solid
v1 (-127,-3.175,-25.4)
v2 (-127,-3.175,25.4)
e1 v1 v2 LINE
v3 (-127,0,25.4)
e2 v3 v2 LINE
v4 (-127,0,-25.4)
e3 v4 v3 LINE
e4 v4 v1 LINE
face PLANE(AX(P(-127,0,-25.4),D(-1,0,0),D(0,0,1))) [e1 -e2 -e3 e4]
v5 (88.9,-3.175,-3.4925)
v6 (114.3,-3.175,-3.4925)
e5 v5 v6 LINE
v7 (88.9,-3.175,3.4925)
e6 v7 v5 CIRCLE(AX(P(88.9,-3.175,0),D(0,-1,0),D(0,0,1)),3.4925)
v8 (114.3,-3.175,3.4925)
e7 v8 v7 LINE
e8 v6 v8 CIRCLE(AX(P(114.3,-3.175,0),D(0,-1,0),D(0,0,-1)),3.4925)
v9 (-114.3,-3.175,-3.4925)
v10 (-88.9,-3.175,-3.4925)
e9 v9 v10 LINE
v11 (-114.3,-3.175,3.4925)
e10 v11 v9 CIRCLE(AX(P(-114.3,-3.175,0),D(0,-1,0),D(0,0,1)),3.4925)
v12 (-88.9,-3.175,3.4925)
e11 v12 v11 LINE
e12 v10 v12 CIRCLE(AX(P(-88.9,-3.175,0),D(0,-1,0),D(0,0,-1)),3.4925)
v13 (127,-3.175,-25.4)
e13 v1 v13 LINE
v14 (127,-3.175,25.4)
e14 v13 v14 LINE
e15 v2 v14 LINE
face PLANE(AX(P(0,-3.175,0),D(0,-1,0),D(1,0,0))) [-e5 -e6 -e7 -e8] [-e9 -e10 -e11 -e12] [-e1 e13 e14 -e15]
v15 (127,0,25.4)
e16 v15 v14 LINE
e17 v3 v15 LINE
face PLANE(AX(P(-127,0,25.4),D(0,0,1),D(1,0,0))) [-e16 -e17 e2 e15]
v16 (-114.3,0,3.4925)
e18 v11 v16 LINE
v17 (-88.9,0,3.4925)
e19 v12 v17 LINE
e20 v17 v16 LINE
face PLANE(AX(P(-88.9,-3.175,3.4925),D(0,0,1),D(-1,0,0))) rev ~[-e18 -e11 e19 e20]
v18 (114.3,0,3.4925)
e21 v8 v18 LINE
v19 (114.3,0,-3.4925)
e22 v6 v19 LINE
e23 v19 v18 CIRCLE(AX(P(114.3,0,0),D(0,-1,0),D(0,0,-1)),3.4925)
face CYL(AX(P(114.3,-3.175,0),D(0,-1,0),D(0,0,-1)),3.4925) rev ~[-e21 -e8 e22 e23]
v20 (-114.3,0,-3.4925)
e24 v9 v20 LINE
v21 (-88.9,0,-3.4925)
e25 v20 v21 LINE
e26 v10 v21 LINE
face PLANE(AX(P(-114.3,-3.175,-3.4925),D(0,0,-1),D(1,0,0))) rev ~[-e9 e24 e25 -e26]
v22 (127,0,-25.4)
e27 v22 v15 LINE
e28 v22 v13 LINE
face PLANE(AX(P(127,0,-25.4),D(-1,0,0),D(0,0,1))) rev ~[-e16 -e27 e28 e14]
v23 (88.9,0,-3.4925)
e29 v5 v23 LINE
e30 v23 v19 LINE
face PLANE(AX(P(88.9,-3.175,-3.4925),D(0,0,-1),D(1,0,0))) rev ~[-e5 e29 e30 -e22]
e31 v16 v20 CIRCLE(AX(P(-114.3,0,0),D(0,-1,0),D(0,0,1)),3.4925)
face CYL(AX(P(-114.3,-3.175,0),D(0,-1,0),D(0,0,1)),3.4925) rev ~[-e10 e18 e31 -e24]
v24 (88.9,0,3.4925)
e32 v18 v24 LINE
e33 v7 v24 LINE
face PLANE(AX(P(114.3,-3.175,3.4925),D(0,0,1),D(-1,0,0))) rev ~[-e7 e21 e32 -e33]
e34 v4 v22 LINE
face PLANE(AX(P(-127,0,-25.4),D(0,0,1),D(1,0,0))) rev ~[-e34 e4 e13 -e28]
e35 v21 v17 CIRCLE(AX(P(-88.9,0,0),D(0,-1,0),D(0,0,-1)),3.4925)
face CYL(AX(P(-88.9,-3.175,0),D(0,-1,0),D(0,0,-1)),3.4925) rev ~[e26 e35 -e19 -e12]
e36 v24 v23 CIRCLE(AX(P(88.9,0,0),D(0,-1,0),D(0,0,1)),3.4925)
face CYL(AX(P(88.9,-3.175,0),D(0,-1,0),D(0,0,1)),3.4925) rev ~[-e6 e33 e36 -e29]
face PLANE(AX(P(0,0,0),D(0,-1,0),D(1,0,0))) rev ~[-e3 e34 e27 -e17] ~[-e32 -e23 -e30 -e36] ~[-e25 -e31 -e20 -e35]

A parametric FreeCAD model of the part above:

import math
import FreeCAD as App
import Part
import Sketcher

V = App.Vector
Q = App.Units.Quantity


def add_polygon(sketch, points):
    """Adds a closed chain of lines whose ends are joined by coincident constraints."""
    first, n = sketch.GeometryCount, len(points)
    for a, b in zip(points, points[1:] + points[:1]):
        sketch.addGeometry(Part.LineSegment(App.Vector(*a, 0), App.Vector(*b, 0)), False)
    for i in range(n):
        sketch.addConstraint(Sketcher.Constraint("Coincident", first + i, 2, first + (i + 1) % n, 1))

doc = App.newDocument("Part")
body = doc.addObject("PartDesign::Body", "Body")

# Sketch on XZ plane
sketch1 = body.newObject("Sketcher::SketchObject", "Sketch")
sketch1.AttachmentSupport = (doc.getObject("XZ_Plane"), [""])
sketch1.MapMode = "FlatFace"
add_polygon(sketch1, [(-127, 25), (-127, -25), (127, -25), (127, 25)])  # lines 0-3
sketch1.addConstraint([
    Sketcher.Constraint("Vertical", 0),
    Sketcher.Constraint("Horizontal", 1),
    Sketcher.Constraint("Vertical", 2),
    Sketcher.Constraint("Horizontal", 3),
    Sketcher.Constraint("Symmetric", 0, 2, 2, 2, -1, 1),
    Sketcher.Constraint("DistanceX", 1, 1, 1, 2, Q("10 in")),
    Sketcher.Constraint("DistanceY", 0, 2, 0, 1, Q("2 in")),
])
pad1 = body.newObject("PartDesign::Pad", "Pad")
pad1.Profile = sketch1
pad1.Length = Q("0.125 in")

# Sketch on XZ plane
sketch2 = body.newObject("Sketcher::SketchObject", "Sketch001")
sketch2.AttachmentSupport = (doc.getObject("XZ_Plane"), [""])
sketch2.MapMode = "FlatFace"
sketch2.AttachmentOffset = App.Placement(V(0, 0, 0.125 * 25.4), App.Rotation())
sketch2.addGeometry([
    Part.LineSegment(V(-88.9, 3.5, 0), V(-114.3, 3.5, 0)),  # 0
    Part.ArcOfCircle(Part.Circle(V(-114.3, 0, 0), V(0, 0, 1), 3.5), math.radians(90), math.radians(270)),  # 1
    Part.LineSegment(V(-114.3, -3.5, 0), V(-88.9, -3.5, 0)),  # 2
    Part.ArcOfCircle(Part.Circle(V(-88.9, 0, 0), V(0, 0, 1), 3.5), math.radians(-90), math.radians(90)),  # 3
    Part.LineSegment(V(88.9, -3.5, 0), V(114.3, -3.5, 0)),  # 4
    Part.ArcOfCircle(Part.Circle(V(114.3, 0, 0), V(0, 0, 1), 3.5), math.radians(-90), math.radians(90)),  # 5
    Part.LineSegment(V(114.3, 3.5, 0), V(88.9, 3.5, 0)),  # 6
    Part.ArcOfCircle(Part.Circle(V(88.9, 0, 0), V(0, 0, 1), 3.5), math.radians(90), math.radians(270)),  # 7
], False)
sketch2.addConstraint([
    Sketcher.Constraint("Tangent", 0, 2, 1, 1),
    Sketcher.Constraint("Tangent", 1, 2, 2, 1),
    Sketcher.Constraint("Tangent", 2, 2, 3, 1),
    Sketcher.Constraint("Tangent", 3, 2, 0, 1),
    Sketcher.Constraint("Tangent", 4, 2, 5, 1),
    Sketcher.Constraint("Tangent", 5, 2, 6, 1),
    Sketcher.Constraint("Tangent", 6, 2, 7, 1),
    Sketcher.Constraint("Tangent", 7, 2, 4, 1),
    Sketcher.Constraint("Horizontal", 0),
    Sketcher.Constraint("Horizontal", 2),
    Sketcher.Constraint("Horizontal", 4),
    Sketcher.Constraint("Horizontal", 6),
    Sketcher.Constraint("Equal", 3, 5),
    Sketcher.Constraint("Symmetric", 1, 3, 5, 3, -1, 1),
    Sketcher.Constraint("Symmetric", 3, 3, 7, 3, -2),
    Sketcher.Constraint("DistanceX", 0, 2, 0, 1, Q("1 in")),
    Sketcher.Constraint("DistanceX", 3, 3, 5, 3, Q("8 in")),
    Sketcher.Constraint("Radius", 1, Q("0.1375 in")),
])
pocket1 = body.newObject("PartDesign::Pocket", "Pocket")
pocket1.Profile = sketch2
pocket1.Length = Q("1 in")

doc.recompute()
